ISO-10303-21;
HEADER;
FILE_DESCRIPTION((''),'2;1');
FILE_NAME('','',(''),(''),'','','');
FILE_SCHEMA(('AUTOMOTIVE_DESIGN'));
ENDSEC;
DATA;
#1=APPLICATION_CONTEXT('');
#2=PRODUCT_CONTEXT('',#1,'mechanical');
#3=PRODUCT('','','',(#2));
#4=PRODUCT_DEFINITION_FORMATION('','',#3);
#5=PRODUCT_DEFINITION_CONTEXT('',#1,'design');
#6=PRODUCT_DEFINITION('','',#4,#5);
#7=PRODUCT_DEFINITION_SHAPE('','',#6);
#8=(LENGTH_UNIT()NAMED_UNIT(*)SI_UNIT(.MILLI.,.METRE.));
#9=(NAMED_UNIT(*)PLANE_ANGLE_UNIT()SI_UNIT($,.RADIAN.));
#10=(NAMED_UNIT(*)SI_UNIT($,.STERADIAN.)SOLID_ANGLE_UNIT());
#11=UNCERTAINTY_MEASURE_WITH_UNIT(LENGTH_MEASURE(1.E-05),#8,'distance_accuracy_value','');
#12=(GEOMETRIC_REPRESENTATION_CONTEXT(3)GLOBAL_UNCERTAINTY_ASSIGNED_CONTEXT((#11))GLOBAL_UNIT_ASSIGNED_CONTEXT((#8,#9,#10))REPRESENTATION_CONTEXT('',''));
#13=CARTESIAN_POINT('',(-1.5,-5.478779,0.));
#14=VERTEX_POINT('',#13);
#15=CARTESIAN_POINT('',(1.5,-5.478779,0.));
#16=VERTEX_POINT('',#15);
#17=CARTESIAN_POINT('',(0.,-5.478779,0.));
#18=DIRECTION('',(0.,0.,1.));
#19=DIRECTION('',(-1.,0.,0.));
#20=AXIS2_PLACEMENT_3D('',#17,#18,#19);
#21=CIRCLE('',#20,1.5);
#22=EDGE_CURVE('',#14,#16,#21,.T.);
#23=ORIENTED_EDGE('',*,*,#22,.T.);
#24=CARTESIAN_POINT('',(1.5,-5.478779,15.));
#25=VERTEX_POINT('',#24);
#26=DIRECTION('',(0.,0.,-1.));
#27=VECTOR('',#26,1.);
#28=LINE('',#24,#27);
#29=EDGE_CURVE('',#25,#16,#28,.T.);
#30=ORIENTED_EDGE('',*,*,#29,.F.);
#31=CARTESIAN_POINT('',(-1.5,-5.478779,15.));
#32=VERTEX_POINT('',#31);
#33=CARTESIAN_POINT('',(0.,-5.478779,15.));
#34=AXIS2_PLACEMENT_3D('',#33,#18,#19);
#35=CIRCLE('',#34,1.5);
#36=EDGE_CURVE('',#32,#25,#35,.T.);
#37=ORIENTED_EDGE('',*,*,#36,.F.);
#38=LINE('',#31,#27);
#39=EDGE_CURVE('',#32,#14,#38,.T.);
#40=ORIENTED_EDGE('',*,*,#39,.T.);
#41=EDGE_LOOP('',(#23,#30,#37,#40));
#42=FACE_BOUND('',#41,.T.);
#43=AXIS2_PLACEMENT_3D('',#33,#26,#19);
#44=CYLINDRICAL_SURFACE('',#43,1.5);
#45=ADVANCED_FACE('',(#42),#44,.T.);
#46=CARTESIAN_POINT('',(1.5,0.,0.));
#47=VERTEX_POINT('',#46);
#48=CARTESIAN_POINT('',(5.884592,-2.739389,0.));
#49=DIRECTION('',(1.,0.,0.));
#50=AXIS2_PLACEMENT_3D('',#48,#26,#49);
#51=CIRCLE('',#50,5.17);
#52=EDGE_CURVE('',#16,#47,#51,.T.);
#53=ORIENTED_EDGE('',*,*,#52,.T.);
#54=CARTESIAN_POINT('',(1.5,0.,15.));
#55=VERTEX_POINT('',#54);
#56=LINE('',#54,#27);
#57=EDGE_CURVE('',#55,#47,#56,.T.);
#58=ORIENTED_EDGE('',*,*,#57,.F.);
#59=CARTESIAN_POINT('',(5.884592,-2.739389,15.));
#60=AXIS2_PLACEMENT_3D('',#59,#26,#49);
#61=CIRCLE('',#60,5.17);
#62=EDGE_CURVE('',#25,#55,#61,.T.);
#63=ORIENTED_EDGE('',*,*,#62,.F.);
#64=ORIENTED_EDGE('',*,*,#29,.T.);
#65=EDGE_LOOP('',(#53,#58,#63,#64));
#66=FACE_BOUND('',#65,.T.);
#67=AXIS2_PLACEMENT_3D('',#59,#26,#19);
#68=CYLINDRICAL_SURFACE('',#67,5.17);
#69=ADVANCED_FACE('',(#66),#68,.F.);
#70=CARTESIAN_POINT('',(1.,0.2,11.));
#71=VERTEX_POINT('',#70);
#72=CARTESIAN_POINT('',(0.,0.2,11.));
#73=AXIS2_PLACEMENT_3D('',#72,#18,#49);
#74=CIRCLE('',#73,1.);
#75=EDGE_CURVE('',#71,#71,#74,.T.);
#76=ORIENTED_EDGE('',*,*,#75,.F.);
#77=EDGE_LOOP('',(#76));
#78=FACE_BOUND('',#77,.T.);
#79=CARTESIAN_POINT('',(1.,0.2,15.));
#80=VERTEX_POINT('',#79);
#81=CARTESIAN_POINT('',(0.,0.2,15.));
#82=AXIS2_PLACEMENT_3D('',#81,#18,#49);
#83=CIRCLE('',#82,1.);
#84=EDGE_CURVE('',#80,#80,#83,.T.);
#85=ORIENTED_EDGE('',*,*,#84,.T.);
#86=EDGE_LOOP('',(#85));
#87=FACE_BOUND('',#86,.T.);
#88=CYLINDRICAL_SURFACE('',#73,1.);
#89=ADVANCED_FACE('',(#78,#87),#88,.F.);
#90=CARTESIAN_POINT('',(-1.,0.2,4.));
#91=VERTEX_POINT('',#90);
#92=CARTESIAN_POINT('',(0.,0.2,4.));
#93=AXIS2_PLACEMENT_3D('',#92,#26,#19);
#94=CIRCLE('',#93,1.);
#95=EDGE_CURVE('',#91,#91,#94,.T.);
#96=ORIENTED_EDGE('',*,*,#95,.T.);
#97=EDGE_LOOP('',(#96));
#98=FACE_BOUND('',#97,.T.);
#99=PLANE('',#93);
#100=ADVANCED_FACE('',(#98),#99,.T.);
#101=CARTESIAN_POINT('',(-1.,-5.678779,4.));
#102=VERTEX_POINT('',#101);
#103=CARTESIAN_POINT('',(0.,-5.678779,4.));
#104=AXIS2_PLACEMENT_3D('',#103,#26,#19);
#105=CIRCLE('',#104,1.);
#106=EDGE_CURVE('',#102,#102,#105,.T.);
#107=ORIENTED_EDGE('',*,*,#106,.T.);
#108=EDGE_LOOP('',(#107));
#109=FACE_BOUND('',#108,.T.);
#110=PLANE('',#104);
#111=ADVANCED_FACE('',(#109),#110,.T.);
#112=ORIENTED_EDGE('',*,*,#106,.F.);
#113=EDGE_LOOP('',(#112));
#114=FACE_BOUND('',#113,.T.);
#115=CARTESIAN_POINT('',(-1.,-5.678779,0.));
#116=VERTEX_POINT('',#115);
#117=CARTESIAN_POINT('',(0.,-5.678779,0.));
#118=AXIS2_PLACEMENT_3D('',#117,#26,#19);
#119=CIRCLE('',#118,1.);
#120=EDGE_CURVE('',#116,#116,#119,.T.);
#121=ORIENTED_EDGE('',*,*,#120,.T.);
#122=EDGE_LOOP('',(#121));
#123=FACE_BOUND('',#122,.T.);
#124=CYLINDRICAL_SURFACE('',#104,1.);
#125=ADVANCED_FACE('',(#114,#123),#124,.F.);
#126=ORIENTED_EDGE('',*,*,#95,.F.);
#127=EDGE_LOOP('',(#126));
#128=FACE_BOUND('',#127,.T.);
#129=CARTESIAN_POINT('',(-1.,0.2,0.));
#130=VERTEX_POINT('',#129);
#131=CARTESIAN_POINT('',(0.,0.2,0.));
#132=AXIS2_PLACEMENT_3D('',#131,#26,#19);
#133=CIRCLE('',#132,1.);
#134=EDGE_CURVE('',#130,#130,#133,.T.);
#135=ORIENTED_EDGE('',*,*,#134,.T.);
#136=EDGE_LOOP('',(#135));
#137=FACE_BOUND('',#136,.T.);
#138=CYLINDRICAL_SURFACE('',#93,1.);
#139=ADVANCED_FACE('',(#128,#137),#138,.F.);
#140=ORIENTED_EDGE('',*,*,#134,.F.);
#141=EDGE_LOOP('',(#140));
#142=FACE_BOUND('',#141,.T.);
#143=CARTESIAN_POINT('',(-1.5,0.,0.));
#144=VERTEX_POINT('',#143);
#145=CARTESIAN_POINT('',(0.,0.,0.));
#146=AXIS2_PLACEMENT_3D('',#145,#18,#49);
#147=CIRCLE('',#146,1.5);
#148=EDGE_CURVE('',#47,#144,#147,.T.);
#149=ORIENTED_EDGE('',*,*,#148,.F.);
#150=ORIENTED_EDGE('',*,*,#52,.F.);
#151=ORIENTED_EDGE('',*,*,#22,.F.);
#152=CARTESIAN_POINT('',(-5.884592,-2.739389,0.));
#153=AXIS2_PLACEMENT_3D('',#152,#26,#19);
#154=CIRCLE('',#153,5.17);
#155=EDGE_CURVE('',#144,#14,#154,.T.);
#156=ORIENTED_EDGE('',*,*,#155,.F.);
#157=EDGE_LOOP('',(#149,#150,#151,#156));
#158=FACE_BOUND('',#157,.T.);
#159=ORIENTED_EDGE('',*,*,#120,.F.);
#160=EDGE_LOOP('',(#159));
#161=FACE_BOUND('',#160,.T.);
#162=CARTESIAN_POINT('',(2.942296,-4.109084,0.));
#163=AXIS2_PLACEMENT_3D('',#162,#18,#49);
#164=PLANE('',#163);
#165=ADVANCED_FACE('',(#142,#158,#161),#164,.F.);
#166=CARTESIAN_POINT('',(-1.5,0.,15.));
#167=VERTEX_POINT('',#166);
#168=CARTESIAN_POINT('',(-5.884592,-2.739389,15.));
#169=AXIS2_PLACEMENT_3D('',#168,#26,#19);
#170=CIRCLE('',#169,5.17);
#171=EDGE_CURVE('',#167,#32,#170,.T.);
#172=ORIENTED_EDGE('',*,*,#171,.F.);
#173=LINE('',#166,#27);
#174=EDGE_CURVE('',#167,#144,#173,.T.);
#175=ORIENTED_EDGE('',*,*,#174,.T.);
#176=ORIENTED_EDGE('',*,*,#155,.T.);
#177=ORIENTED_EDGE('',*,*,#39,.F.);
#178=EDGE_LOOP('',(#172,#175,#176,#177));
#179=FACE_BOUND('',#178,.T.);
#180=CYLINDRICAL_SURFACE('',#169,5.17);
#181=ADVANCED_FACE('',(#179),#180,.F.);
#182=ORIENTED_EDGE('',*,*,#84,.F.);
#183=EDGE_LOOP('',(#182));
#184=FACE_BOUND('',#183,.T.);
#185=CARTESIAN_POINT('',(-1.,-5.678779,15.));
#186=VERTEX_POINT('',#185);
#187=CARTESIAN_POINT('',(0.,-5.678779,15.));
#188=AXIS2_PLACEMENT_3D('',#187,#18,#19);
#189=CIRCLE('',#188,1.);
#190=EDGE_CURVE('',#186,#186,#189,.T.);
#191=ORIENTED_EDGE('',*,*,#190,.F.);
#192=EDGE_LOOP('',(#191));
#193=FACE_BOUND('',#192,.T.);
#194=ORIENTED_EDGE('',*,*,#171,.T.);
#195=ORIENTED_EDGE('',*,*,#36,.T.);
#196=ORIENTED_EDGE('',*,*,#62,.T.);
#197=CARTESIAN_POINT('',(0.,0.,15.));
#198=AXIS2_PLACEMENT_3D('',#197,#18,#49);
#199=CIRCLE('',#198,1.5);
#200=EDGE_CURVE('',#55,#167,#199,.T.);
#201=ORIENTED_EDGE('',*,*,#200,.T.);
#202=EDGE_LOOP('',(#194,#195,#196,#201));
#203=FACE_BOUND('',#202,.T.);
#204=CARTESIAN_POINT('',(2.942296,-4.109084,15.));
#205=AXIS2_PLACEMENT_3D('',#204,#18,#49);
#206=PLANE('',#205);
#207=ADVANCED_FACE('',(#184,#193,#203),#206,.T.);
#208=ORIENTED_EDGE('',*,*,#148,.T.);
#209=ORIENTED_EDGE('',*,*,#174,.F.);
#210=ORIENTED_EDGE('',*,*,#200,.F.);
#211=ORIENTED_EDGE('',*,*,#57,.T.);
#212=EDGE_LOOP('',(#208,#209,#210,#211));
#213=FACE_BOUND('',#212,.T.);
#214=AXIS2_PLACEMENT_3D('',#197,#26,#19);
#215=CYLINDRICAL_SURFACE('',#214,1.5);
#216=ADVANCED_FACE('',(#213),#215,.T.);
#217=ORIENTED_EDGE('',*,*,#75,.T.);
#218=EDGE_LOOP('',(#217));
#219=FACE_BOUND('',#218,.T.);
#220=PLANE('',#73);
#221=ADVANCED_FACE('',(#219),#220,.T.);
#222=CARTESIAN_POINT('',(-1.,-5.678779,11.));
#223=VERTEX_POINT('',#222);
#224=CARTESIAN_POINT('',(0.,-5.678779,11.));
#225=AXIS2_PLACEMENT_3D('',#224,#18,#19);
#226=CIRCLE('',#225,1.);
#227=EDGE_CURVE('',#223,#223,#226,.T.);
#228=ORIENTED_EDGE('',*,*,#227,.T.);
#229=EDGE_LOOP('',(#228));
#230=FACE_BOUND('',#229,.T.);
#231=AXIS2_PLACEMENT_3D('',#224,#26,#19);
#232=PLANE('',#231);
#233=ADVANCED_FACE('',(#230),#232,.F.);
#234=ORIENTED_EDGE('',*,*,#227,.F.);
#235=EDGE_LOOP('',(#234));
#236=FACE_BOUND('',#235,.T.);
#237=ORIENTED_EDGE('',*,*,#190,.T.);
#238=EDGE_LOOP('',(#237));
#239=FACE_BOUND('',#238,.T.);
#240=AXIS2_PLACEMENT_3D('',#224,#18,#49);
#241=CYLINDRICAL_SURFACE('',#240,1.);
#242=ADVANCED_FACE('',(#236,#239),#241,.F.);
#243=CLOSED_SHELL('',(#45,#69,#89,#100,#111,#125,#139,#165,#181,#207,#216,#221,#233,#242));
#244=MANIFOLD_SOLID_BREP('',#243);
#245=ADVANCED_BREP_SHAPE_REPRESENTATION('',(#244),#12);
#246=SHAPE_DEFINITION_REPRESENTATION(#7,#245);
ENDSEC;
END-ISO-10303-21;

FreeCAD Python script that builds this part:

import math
import FreeCAD as App
import Part
import Sketcher

V = App.Vector
Q = App.Units.Quantity

doc = App.newDocument("Part")
params = doc.addObject("Spreadsheet::Sheet", "Params")
for row, (alias, value) in enumerate([
    ("sketch1_radius", "1.5 mm"),
    ("sketch1_radius2", "5.17 mm"),
    ("pad1_length", "15 mm"),
    ("sketch2_diameter", "2 mm"),
    ("pocket1_length", "4 mm"),
    ("sketch3_diameter", "2 mm"),
    ("pocket2_length", "4 mm"),
], start=1):
    params.set(f"A{row}", alias)
    params.set(f"B{row}", "=" + value)
    params.setAlias(f"B{row}", alias)

body = doc.addObject("PartDesign::Body", "Body")

sketch1 = body.newObject("Sketcher::SketchObject", "Sketch")
sketch1.AttachmentSupport = (doc.getObject("XY_Plane"), [""])
sketch1.MapMode = "FlatFace"
sketch1.addGeometry([
    Part.ArcOfCircle(Part.Circle(V(0, 0, 0), V(0, 0, 1), 1.5), math.radians(0), math.radians(180)),
    Part.ArcOfCircle(Part.Circle(V(-5.9, -2.7, 0), V(0, 0, 1), 5.2), math.radians(-32), math.radians(32)),
    Part.ArcOfCircle(Part.Circle(V(0, -5.5, 0), V(0, 0, 1), 1.5), math.radians(180), math.radians(360)),
    Part.ArcOfCircle(Part.Circle(V(5.9, -2.7, 0), V(0, 0, 1), 5.2), math.radians(148), math.radians(212)),
], False)
sketch1.addConstraint([
    Sketcher.Constraint("Coincident", 0, 2, 1, 2),
    Sketcher.Constraint("Coincident", 1, 1, 2, 1),
    Sketcher.Constraint("Coincident", 2, 2, 3, 2),
    Sketcher.Constraint("Coincident", 3, 1, 0, 1),
    Sketcher.Constraint("Coincident", 0, 3, -1, 1),
    Sketcher.Constraint("Equal", 0, 2),
    Sketcher.Constraint("Equal", 1, 3),
    Sketcher.Constraint("Symmetric", 1, 3, 3, 3, -2),
    Sketcher.Constraint("PointOnObject", 2, 3, -2),
    Sketcher.Constraint("PointOnObject", 0, 2, -1),
    Sketcher.Constraint("Horizontal", 2, 3, 1, 1),
    Sketcher.Constraint("Radius", 0, Q("1.5 mm")),
    Sketcher.Constraint("Radius", 1, Q("5.17 mm")),
    Sketcher.Constraint("DistanceX", 1, 3, -1, 1, Q("5.884592 mm")),
])
sketch1.setExpression("Constraints[11]", "Params.sketch1_radius")
sketch1.setExpression("Constraints[12]", "Params.sketch1_radius2")
pad1 = body.newObject("PartDesign::Pad", "Pad")
pad1.Profile = sketch1
pad1.setExpression("Length", "Params.pad1_length")

sketch2 = body.newObject("Sketcher::SketchObject", "Sketch001")
sketch2.AttachmentSupport = (doc.getObject("XY_Plane"), [""])
sketch2.MapMode = "FlatFace"
sketch2.AttachmentOffset = App.Placement(V(0, 0, 15), App.Rotation())
sketch2.addGeometry([
    Part.Circle(V(0, 0.2, 0), V(0, 0, 1), 1),
    Part.Circle(V(0, -5.7, 0), V(0, 0, 1), 1),
], False)
sketch2.addConstraint([
    Sketcher.Constraint("Equal", 0, 1),
    Sketcher.Constraint("PointOnObject", 0, 3, -2),
    Sketcher.Constraint("PointOnObject", 1, 3, -2),
    Sketcher.Constraint("Diameter", 0, Q("2 mm")),
    Sketcher.Constraint("DistanceY", -1, 1, 0, 3, Q("0.2 mm")),
    Sketcher.Constraint("DistanceY", 1, 3, -1, 1, Q("5.678779 mm")),
])
sketch2.setExpression("Constraints[3]", "Params.sketch2_diameter")
pocket1 = body.newObject("PartDesign::Pocket", "Pocket")
pocket1.Profile = sketch2
pocket1.setExpression("Length", "Params.pocket1_length")

sketch3 = body.newObject("Sketcher::SketchObject", "Sketch002")
sketch3.AttachmentSupport = (doc.getObject("XY_Plane"), [""])
sketch3.MapMode = "FlatFace"
sketch3.addGeometry([
    Part.Circle(V(0, 0.2, 0), V(0, 0, 1), 1),
    Part.Circle(V(0, -5.7, 0), V(0, 0, 1), 1),
], False)
sketch3.addConstraint([
    Sketcher.Constraint("Equal", 0, 1),
    Sketcher.Constraint("PointOnObject", 0, 3, -2),
    Sketcher.Constraint("PointOnObject", 1, 3, -2),
    Sketcher.Constraint("Diameter", 0, Q("2 mm")),
    Sketcher.Constraint("DistanceY", -1, 1, 0, 3, Q("0.2 mm")),
    Sketcher.Constraint("DistanceY", 1, 3, -1, 1, Q("5.678779 mm")),
])
sketch3.setExpression("Constraints[3]", "Params.sketch3_diameter")
pocket2 = body.newObject("PartDesign::Pocket", "Pocket001")
pocket2.Profile = sketch3
pocket2.setExpression("Length", "Params.pocket2_length")
pocket2.Reversed = True

doc.recompute()
